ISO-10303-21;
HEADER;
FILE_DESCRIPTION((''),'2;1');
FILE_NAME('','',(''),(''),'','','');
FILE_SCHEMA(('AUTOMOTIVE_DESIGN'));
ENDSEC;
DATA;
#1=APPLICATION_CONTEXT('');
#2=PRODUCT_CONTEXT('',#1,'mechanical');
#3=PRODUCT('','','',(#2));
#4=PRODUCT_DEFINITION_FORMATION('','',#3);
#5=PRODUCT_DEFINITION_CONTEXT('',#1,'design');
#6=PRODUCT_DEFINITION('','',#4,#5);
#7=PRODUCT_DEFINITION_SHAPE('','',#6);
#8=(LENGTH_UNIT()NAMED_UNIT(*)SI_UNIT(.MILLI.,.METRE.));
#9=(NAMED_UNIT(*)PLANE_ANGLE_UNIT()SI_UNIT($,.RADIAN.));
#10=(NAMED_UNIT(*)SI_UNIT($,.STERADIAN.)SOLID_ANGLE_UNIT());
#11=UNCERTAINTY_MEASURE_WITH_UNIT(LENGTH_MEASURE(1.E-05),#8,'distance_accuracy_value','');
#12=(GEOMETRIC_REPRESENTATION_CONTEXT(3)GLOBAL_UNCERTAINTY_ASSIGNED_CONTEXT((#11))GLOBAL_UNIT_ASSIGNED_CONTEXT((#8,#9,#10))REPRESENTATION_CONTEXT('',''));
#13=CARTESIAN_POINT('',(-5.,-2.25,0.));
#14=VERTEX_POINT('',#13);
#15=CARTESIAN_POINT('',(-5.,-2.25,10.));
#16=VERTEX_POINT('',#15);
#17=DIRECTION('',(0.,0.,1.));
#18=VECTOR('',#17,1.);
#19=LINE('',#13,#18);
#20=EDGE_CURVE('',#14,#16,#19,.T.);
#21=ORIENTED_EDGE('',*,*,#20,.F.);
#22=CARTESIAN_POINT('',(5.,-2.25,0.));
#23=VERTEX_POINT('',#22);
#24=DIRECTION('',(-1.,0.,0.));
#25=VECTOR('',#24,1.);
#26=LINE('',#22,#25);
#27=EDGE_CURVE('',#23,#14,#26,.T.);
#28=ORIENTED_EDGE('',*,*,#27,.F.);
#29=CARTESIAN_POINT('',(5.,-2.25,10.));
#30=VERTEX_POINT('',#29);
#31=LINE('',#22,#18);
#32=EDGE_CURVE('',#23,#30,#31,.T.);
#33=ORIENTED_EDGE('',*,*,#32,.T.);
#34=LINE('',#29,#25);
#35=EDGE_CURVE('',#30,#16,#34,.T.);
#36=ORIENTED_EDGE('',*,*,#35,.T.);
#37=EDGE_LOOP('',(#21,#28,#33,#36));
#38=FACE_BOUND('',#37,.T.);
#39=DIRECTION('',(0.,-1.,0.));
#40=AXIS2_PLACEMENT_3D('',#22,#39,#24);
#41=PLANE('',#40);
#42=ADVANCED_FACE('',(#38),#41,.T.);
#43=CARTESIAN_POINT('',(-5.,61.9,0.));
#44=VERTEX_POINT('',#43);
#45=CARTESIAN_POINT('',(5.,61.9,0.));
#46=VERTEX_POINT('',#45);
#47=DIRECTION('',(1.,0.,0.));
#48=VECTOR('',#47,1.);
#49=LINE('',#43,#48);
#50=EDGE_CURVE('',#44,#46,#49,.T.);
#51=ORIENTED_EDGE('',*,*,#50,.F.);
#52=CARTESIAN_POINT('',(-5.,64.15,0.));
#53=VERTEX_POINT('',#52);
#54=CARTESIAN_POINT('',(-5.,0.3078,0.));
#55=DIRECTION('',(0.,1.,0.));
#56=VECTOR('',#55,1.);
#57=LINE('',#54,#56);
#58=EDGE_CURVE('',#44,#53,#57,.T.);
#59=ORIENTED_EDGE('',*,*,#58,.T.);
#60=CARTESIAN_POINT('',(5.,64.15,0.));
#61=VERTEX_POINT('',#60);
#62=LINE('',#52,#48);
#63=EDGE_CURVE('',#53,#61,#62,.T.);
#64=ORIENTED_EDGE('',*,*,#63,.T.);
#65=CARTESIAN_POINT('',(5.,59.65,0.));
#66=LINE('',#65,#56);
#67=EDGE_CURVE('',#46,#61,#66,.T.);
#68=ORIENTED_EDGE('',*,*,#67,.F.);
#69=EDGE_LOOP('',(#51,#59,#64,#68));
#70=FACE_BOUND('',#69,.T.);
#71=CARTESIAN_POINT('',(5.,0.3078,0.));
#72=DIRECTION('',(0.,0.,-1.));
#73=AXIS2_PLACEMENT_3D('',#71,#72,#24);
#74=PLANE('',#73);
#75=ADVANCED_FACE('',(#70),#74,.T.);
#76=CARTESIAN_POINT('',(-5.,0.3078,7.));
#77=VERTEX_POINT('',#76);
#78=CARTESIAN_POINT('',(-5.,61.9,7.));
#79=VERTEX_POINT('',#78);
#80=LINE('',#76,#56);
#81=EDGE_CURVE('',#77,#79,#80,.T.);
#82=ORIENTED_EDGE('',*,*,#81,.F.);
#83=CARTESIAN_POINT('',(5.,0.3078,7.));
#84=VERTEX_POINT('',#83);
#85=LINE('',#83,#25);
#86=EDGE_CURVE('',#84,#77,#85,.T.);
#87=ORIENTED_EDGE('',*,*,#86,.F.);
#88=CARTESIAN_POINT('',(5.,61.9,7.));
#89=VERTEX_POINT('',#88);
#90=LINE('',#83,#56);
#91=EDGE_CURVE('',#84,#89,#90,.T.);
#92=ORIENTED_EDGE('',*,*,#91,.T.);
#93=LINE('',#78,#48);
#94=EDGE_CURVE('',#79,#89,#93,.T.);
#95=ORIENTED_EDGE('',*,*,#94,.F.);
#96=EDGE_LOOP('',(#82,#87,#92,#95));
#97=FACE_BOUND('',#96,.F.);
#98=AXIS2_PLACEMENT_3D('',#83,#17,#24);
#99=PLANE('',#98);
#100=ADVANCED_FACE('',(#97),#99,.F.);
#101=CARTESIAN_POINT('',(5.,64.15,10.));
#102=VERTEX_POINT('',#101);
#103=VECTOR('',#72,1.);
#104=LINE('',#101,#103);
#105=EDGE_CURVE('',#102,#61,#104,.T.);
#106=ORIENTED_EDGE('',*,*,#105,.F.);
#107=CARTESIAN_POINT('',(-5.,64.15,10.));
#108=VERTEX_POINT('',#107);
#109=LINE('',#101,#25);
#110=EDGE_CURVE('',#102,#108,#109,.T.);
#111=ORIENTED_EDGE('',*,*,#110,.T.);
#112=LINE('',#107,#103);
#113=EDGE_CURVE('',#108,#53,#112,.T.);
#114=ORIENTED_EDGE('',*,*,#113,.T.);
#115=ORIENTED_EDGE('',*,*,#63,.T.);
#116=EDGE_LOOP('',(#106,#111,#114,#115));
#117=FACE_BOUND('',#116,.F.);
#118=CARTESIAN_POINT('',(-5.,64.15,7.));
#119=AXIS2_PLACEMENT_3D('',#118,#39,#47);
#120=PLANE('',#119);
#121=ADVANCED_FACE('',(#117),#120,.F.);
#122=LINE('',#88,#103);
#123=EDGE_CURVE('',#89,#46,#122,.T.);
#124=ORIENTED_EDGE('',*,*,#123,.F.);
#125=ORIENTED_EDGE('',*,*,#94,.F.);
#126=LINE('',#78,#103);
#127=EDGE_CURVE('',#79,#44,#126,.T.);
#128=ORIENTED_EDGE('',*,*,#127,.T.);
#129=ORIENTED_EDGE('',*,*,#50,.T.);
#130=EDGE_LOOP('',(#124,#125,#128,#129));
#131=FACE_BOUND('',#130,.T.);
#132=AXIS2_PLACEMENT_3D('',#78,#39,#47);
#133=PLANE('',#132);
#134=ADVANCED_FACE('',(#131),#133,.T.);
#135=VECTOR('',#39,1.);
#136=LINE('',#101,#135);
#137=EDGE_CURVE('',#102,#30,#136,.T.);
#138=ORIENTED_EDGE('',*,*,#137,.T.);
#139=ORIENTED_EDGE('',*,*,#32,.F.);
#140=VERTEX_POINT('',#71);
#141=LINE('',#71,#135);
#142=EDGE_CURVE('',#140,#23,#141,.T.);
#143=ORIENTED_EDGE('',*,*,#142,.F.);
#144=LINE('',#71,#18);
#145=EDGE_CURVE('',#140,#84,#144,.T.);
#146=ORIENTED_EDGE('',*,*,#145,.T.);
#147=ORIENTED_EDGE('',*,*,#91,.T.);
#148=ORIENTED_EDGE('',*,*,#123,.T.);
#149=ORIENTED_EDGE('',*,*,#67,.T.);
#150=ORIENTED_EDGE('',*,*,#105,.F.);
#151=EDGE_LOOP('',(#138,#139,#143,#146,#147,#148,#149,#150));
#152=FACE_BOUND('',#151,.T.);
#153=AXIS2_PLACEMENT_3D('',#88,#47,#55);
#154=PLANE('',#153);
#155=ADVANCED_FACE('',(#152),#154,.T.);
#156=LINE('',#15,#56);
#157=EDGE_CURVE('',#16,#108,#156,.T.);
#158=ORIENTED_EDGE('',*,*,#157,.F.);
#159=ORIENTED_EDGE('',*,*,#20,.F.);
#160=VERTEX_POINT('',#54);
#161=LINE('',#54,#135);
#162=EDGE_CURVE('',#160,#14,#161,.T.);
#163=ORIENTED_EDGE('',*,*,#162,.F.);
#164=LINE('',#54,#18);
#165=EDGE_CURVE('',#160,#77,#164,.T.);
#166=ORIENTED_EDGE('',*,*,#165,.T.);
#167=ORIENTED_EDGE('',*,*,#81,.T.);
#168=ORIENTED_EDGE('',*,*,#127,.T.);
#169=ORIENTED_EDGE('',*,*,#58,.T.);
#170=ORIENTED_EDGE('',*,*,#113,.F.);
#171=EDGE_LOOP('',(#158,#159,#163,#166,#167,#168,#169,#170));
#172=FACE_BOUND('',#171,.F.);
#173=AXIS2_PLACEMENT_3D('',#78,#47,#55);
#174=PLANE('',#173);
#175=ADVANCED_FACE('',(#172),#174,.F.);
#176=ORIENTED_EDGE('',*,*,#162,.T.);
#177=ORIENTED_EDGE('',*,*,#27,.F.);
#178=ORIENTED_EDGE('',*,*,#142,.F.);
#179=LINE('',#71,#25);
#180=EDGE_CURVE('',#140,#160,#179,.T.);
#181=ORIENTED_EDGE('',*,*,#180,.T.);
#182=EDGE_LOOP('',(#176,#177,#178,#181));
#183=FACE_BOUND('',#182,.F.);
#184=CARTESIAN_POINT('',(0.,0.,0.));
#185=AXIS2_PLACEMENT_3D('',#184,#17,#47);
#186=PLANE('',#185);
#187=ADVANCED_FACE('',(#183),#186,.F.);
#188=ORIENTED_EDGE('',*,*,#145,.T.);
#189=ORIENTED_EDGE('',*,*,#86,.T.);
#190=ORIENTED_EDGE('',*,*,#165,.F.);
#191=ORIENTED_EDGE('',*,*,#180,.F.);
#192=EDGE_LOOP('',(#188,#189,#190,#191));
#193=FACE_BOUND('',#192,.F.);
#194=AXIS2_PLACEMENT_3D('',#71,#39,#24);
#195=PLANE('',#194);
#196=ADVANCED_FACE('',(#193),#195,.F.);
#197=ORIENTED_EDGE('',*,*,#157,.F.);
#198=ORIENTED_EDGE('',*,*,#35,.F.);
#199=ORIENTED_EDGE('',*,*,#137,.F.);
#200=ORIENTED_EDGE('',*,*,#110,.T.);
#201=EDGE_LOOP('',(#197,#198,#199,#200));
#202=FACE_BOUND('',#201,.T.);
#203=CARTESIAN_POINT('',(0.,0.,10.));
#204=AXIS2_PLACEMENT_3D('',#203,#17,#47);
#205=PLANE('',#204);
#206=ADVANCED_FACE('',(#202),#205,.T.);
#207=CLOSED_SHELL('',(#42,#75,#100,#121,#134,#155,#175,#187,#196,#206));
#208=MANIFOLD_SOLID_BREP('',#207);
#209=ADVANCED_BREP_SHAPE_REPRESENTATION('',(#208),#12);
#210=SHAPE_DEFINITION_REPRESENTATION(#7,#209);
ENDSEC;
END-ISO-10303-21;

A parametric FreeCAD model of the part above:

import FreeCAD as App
import Part
import Sketcher
from FreeCAD import Vector
Q = App.Units.Quantity


def add_polygon(sketch, points):
    """Adds a closed chain of lines whose ends are joined by coincident constraints."""
    first, n = sketch.GeometryCount, len(points)
    for a, b in zip(points, points[1:] + points[:1]):
        sketch.addGeometry(Part.LineSegment(App.Vector(*a, 0), App.Vector(*b, 0)), False)
    for i in range(n):
        sketch.addConstraint(Sketcher.Constraint("Coincident", first + i, 2, first + (i + 1) % n, 1))

doc = App.newDocument("Part")
body = doc.addObject("PartDesign::Body", "Body")

# Sketch on XY plane
sketch1 = body.newObject("Sketcher::SketchObject", "Sketch")
sketch1.AttachmentSupport = (doc.getObject("XY_Plane"), [""])
sketch1.MapMode = "FlatFace"
add_polygon(sketch1, [(5, 0.3078), (-5, 0.3078), (-5, -2.25), (5, -2.25)])  # lines 0-3
sketch1.addConstraint([
    Sketcher.Constraint("Horizontal", 0),
    Sketcher.Constraint("Vertical", 1),
    Sketcher.Constraint("Horizontal", 2),
    Sketcher.Constraint("Vertical", 3),
    Sketcher.Constraint("DistanceX", 0, 2, 0, 1, Q("10 mm")),
    Sketcher.Constraint("DistanceX", 0, 2, -1, 1, Q("5 mm")),
    Sketcher.Constraint("DistanceY", 1, 2, -1, 1, Q("2.25 mm")),
    Sketcher.Constraint("DistanceY", 1, 2, 1, 1, Q("2.5578 mm")),
])
pad1 = body.newObject("PartDesign::Pad", "Pad")
pad1.Profile = sketch1
pad1.Length = 10

# Sketch on XZ plane
sketch2 = body.newObject("Sketcher::SketchObject", "Sketch001")
sketch2.AttachmentSupport = (doc.getObject("XZ_Plane"), [""])
sketch2.MapMode = "FlatFace"
sketch2.AttachmentOffset = App.Placement(Vector(0, 0, -0.3078), App.Rotation())
add_polygon(sketch2, [(5, 10), (5, 7), (-5, 7), (-5, 10)])  # lines 0-3
sketch2.addConstraint([
    Sketcher.Constraint("Vertical", 0),
    Sketcher.Constraint("Horizontal", 1),
    Sketcher.Constraint("Vertical", 2),
    Sketcher.Constraint("Horizontal", 3),
    Sketcher.Constraint("DistanceX", 1, 2, 1, 1, Q("10 mm")),
    Sketcher.Constraint("DistanceY", 0, 2, 0, 1, Q("3 mm")),
    Sketcher.Constraint("DistanceX", -1, 1, 0, 2, Q("5 mm")),
    Sketcher.Constraint("DistanceY", -1, 1, 0, 2, Q("7 mm")),
])
pad2 = body.newObject("PartDesign::Pad", "Pad001")
pad2.Profile = sketch2
pad2.Length = 63.8422
pad2.Reversed = True

# Sketch on XY plane
sketch3 = body.newObject("Sketcher::SketchObject", "Sketch002")
sketch3.AttachmentSupport = (doc.getObject("XY_Plane"), [""])
sketch3.MapMode = "FlatFace"
sketch3.AttachmentOffset = App.Placement(Vector(0, 0, 7), App.Rotation())
add_polygon(sketch3, [(-5, 61.9), (-5, 64.15), (5, 64.15), (5, 61.9)])  # lines 0-3
sketch3.addConstraint([
    Sketcher.Constraint("Vertical", 0),
    Sketcher.Constraint("Horizontal", 1),
    Sketcher.Constraint("Vertical", 2),
    Sketcher.Constraint("Horizontal", 3),
    Sketcher.Constraint("DistanceX", 1, 1, 1, 2, Q("10 mm")),
    Sketcher.Constraint("DistanceX", 0, 2, -1, 1, Q("5 mm")),
    Sketcher.Constraint("DistanceY", 0, 1, 0, 2, Q("2.25 mm")),
    Sketcher.Constraint("DistanceY", -1, 1, 2, 2, Q("61.9 mm")),
])
pad3 = body.newObject("PartDesign::Pad", "Pad002")
pad3.Profile = sketch3
pad3.Length = 7
pad3.Reversed = True

doc.recompute()
